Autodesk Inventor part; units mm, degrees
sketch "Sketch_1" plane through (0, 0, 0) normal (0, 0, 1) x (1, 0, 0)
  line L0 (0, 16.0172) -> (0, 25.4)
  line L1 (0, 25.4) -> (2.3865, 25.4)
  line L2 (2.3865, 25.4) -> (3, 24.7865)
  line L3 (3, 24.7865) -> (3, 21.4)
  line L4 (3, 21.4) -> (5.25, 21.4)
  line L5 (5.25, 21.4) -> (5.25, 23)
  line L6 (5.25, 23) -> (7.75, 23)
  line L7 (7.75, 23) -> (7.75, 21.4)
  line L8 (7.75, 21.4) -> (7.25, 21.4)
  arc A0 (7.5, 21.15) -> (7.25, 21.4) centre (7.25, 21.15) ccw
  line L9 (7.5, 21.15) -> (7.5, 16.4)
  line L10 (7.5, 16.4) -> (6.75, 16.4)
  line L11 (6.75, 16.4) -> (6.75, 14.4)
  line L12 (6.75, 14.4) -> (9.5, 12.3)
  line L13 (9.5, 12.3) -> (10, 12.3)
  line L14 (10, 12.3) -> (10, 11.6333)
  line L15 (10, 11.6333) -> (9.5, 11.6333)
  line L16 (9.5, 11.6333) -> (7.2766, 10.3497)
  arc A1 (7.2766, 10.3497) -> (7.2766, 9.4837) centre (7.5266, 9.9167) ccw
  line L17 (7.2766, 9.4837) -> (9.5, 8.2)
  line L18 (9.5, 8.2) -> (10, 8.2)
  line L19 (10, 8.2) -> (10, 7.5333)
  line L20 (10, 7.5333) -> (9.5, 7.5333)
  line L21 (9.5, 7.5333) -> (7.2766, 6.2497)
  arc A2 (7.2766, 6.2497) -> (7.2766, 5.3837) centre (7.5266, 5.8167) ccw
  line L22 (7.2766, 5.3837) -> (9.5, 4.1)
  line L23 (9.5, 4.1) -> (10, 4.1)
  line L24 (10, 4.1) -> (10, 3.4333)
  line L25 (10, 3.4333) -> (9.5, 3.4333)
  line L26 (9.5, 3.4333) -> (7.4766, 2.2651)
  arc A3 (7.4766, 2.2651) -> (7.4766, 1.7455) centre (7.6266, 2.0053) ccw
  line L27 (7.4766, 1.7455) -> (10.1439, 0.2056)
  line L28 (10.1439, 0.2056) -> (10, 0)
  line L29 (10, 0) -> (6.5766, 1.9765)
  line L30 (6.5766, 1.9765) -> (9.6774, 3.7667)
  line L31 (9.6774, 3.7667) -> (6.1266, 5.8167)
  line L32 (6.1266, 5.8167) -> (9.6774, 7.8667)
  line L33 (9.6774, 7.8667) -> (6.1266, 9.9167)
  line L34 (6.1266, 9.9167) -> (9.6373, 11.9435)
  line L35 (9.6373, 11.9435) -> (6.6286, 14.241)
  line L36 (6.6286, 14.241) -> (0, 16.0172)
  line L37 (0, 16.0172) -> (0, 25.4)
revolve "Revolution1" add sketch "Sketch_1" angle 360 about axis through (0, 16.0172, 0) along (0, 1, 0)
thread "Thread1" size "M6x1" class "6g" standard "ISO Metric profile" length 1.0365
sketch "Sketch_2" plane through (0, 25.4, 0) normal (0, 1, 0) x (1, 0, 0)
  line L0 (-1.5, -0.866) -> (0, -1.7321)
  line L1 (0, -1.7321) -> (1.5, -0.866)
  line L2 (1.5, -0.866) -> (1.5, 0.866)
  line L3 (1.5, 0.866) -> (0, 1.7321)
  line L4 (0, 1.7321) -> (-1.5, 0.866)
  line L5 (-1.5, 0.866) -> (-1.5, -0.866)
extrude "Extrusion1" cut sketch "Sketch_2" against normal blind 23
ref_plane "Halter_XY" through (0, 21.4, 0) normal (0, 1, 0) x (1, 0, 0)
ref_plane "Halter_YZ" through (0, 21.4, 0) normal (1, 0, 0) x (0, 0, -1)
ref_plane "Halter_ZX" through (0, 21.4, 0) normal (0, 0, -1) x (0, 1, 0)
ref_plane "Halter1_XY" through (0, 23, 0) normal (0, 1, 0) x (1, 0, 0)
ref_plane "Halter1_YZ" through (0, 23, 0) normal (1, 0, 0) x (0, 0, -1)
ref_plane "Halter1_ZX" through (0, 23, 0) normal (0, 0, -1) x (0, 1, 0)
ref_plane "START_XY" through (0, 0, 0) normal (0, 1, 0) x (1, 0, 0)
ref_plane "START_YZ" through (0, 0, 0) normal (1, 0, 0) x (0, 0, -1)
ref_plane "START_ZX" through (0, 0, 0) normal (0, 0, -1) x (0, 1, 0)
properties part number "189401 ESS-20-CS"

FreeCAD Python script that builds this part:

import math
import FreeCAD as App
import Part
import Sketcher
Q = App.Units.Quantity

doc = App.newDocument("Part")
body = doc.addObject("PartDesign::Body", "Body")

sketch1 = body.newObject("Sketcher::SketchObject", "Sketch")
sketch1.AttachmentSupport = (doc.getObject("XY_Plane"), [""])
sketch1.MapMode = "FlatFace"
sketch1.addGeometry([
    Part.LineSegment(App.Vector(0, 25.4, 0), App.Vector(0, 16.02, 0)),
    Part.LineSegment(App.Vector(0, 16.02, 0), App.Vector(6.63, 14.24, 0)),
    Part.LineSegment(App.Vector(6.63, 14.24, 0), App.Vector(9.64, 11.94, 0)),
    Part.LineSegment(App.Vector(9.64, 11.94, 0), App.Vector(6.13, 9.92, 0)),
    Part.LineSegment(App.Vector(6.13, 9.92, 0), App.Vector(9.68, 7.87, 0)),
    Part.LineSegment(App.Vector(9.68, 7.87, 0), App.Vector(6.13, 5.82, 0)),
    Part.LineSegment(App.Vector(6.13, 5.82, 0), App.Vector(9.68, 3.77, 0)),
    Part.LineSegment(App.Vector(9.68, 3.77, 0), App.Vector(6.58, 1.98, 0)),
    Part.LineSegment(App.Vector(6.58, 1.98, 0), App.Vector(10, 0, 0)),
    Part.LineSegment(App.Vector(10, 0, 0), App.Vector(10.14, 0.21, 0)),
    Part.LineSegment(App.Vector(10.14, 0.21, 0), App.Vector(7.48, 1.75, 0)),
    Part.ArcOfCircle(Part.Circle(App.Vector(7.63, 2.01, 0), App.Vector(0, 0, 1), 0.3), math.radians(120), math.radians(240)),
    Part.LineSegment(App.Vector(7.48, 2.27, 0), App.Vector(9.5, 3.43, 0)),
    Part.LineSegment(App.Vector(9.5, 3.43, 0), App.Vector(10, 3.43, 0)),
    Part.LineSegment(App.Vector(10, 3.43, 0), App.Vector(10, 4.1, 0)),
    Part.LineSegment(App.Vector(10, 4.1, 0), App.Vector(9.5, 4.1, 0)),
    Part.LineSegment(App.Vector(9.5, 4.1, 0), App.Vector(7.28, 5.38, 0)),
    Part.ArcOfCircle(Part.Circle(App.Vector(7.53, 5.82, 0), App.Vector(0, 0, 1), 0.5), math.radians(120), math.radians(240)),
    Part.LineSegment(App.Vector(7.28, 6.25, 0), App.Vector(9.5, 7.53, 0)),
    Part.LineSegment(App.Vector(9.5, 7.53, 0), App.Vector(10, 7.53, 0)),
    Part.LineSegment(App.Vector(10, 7.53, 0), App.Vector(10, 8.2, 0)),
    Part.LineSegment(App.Vector(10, 8.2, 0), App.Vector(9.5, 8.2, 0)),
    Part.LineSegment(App.Vector(9.5, 8.2, 0), App.Vector(7.28, 9.48, 0)),
    Part.ArcOfCircle(Part.Circle(App.Vector(7.53, 9.92, 0), App.Vector(0, 0, 1), 0.5), math.radians(120), math.radians(240)),
    Part.LineSegment(App.Vector(7.28, 10.35, 0), App.Vector(9.5, 11.63, 0)),
    Part.LineSegment(App.Vector(9.5, 11.63, 0), App.Vector(10, 11.63, 0)),
    Part.LineSegment(App.Vector(10, 11.63, 0), App.Vector(10, 12.3, 0)),
    Part.LineSegment(App.Vector(10, 12.3, 0), App.Vector(9.5, 12.3, 0)),
    Part.LineSegment(App.Vector(9.5, 12.3, 0), App.Vector(6.75, 14.4, 0)),
    Part.LineSegment(App.Vector(6.75, 14.4, 0), App.Vector(6.75, 16.4, 0)),
    Part.LineSegment(App.Vector(6.75, 16.4, 0), App.Vector(7.5, 16.4, 0)),
    Part.LineSegment(App.Vector(7.5, 16.4, 0), App.Vector(7.5, 21.15, 0)),
    Part.ArcOfCircle(Part.Circle(App.Vector(7.25, 21.15, 0), App.Vector(0, 0, 1), 0.25), math.radians(0), math.radians(90)),
    Part.LineSegment(App.Vector(7.25, 21.4, 0), App.Vector(7.75, 21.4, 0)),
    Part.LineSegment(App.Vector(7.75, 21.4, 0), App.Vector(7.75, 23, 0)),
    Part.LineSegment(App.Vector(7.75, 23, 0), App.Vector(5.25, 23, 0)),
    Part.LineSegment(App.Vector(5.25, 23, 0), App.Vector(5.25, 21.4, 0)),
    Part.LineSegment(App.Vector(5.25, 21.4, 0), App.Vector(3, 21.4, 0)),
    Part.LineSegment(App.Vector(3, 21.4, 0), App.Vector(3, 24.79, 0)),
    Part.LineSegment(App.Vector(3, 24.79, 0), App.Vector(2.39, 25.4, 0)),
    Part.LineSegment(App.Vector(2.39, 25.4, 0), App.Vector(0, 25.4, 0)),
], False)
sketch1.addConstraint([
    Sketcher.Constraint("Coincident", 0, 2, 1, 1),
    Sketcher.Constraint("Coincident", 1, 2, 2, 1),
    Sketcher.Constraint("Coincident", 2, 2, 3, 1),
    Sketcher.Constraint("Coincident", 3, 2, 4, 1),
    Sketcher.Constraint("Coincident", 4, 2, 5, 1),
    Sketcher.Constraint("Coincident", 5, 2, 6, 1),
    Sketcher.Constraint("Coincident", 6, 2, 7, 1),
    Sketcher.Constraint("Coincident", 7, 2, 8, 1),
    Sketcher.Constraint("Coincident", 8, 2, 9, 1),
    Sketcher.Constraint("Coincident", 9, 2, 10, 1),
    Sketcher.Constraint("Tangent", 10, 2, 11, 2),
    Sketcher.Constraint("Tangent", 11, 1, 12, 1),
    Sketcher.Constraint("Coincident", 12, 2, 13, 1),
    Sketcher.Constraint("Coincident", 13, 2, 14, 1),
    Sketcher.Constraint("Coincident", 14, 2, 15, 1),
    Sketcher.Constraint("Coincident", 15, 2, 16, 1),
    Sketcher.Constraint("Tangent", 16, 2, 17, 2),
    Sketcher.Constraint("Tangent", 17, 1, 18, 1),
    Sketcher.Constraint("Coincident", 18, 2, 19, 1),
    Sketcher.Constraint("Coincident", 19, 2, 20, 1),
    Sketcher.Constraint("Coincident", 20, 2, 21, 1),
    Sketcher.Constraint("Coincident", 21, 2, 22, 1),
    Sketcher.Constraint("Tangent", 22, 2, 23, 2),
    Sketcher.Constraint("Tangent", 23, 1, 24, 1),
    Sketcher.Constraint("Coincident", 24, 2, 25, 1),
    Sketcher.Constraint("Coincident", 25, 2, 26, 1),
    Sketcher.Constraint("Coincident", 26, 2, 27, 1),
    Sketcher.Constraint("Coincident", 27, 2, 28, 1),
    Sketcher.Constraint("Coincident", 28, 2, 29, 1),
    Sketcher.Constraint("Coincident", 29, 2, 30, 1),
    Sketcher.Constraint("Coincident", 30, 2, 31, 1),
    Sketcher.Constraint("Tangent", 31, 2, 32, 1),
    Sketcher.Constraint("Tangent", 32, 2, 33, 1),
    Sketcher.Constraint("Coincident", 33, 2, 34, 1),
    Sketcher.Constraint("Coincident", 34, 2, 35, 1),
    Sketcher.Constraint("Coincident", 35, 2, 36, 1),
    Sketcher.Constraint("Coincident", 36, 2, 37, 1),
    Sketcher.Constraint("Coincident", 37, 2, 38, 1),
    Sketcher.Constraint("Coincident", 38, 2, 39, 1),
    Sketcher.Constraint("Coincident", 39, 2, 40, 1),
    Sketcher.Constraint("Coincident", 40, 2, 0, 1),
    Sketcher.Constraint("Vertical", 0),
    Sketcher.Constraint("Horizontal", 13),
    Sketcher.Constraint("Vertical", 14),
    Sketcher.Constraint("Horizontal", 15),
    Sketcher.Constraint("Horizontal", 19),
    Sketcher.Constraint("Vertical", 20),
    Sketcher.Constraint("Horizontal", 21),
    Sketcher.Constraint("Horizontal", 25),
    Sketcher.Constraint("Vertical", 26),
    Sketcher.Constraint("Horizontal", 27),
    Sketcher.Constraint("Vertical", 29),
    Sketcher.Constraint("Horizontal", 30),
    Sketcher.Constraint("Vertical", 31),
    Sketcher.Constraint("Horizontal", 33),
    Sketcher.Constraint("Vertical", 34),
    Sketcher.Constraint("Horizontal", 35),
    Sketcher.Constraint("Vertical", 36),
    Sketcher.Constraint("Horizontal", 37),
    Sketcher.Constraint("Vertical", 38),
    Sketcher.Constraint("Horizontal", 40),
    Sketcher.Constraint("Equal", 17, 23),
    Sketcher.Constraint("PointOnObject", 0, 2, -2),
    Sketcher.Constraint("PointOnObject", 8, 2, -1),
    Sketcher.Constraint("Parallel", 3, 5),
    Sketcher.Constraint("Parallel", 4, 6),
    Sketcher.Constraint("Parallel", 5, 7),
    Sketcher.Constraint("Parallel", 6, 8),
    Sketcher.Constraint("Parallel", 8, 10),
    Sketcher.Constraint("Parallel", 7, 12),
    Sketcher.Constraint("Parallel", 10, 16),
    Sketcher.Constraint("Parallel", 12, 18),
    Sketcher.Constraint("Parallel", 16, 22),
    Sketcher.Constraint("Parallel", 18, 24),
    Sketcher.Constraint("Parallel", 2, 28),
    Sketcher.Constraint("Horizontal", 23, 3, 3, 2),
    Sketcher.Constraint("Horizontal", 17, 3, 5, 2),
    Sketcher.Constraint("Horizontal", 33, 2, 36, 2),
    Sketcher.Constraint("Vertical", 17, 3, 23, 3),
    Sketcher.Constraint("Vertical", 3, 2, 5, 2),
    Sketcher.Constraint("Vertical", 4, 2, 6, 2),
    Sketcher.Constraint("Vertical", 10, 2, 11, 1),
    Sketcher.Constraint("Vertical", 8, 2, 13, 2),
    Sketcher.Constraint("Vertical", 12, 2, 15, 2),
    Sketcher.Constraint("Vertical", 15, 2, 18, 2),
    Sketcher.Constraint("Vertical", 14, 2, 19, 2),
    Sketcher.Constraint("Vertical", 18, 2, 21, 2),
    Sketcher.Constraint("Vertical", 21, 2, 24, 2),
    Sketcher.Constraint("Vertical", 20, 2, 25, 2),
    Sketcher.Constraint("Vertical", 24, 2, 27, 2),
    Sketcher.Constraint("Equal", 27, 33),
    Sketcher.Constraint("Equal", 14, 20),
    Sketcher.Constraint("Equal", 20, 26),
    Sketcher.Constraint("Radius", 11, 0.3),
    Sketcher.Constraint("Radius", 17, 0.5),
    Sketcher.Constraint("DistanceY", 29, 1, 29, 2, 2.0),
    Sketcher.Constraint("Angle", 1, Q("-15.0006 deg")),
    Sketcher.Constraint("Angle", 4, Q("-29.9993 deg")),
    Sketcher.Constraint("Angle", 39, Q("135 deg")),
    Sketcher.Constraint("Radius", 32, 0.25),
    Sketcher.Constraint("DistanceX", 13, 1, 13, 2, 0.5),
    Sketcher.Constraint("DistanceX", 35, 2, 35, 1, 2.5),
    Sketcher.Constraint("DistanceY", 34, 1, 34, 2, 1.6),
    Sketcher.Constraint("DistanceX", -1, 1, 8, 2, 10.0),
    Sketcher.Constraint("DistanceY", -1, 1, 34, 2, 23.0),
    Sketcher.Constraint("DistanceX", -1, 1, 37, 2, 3.0),
    Sketcher.Constraint("DistanceX", 30, 2, 27, 2, 2.0),
    Sketcher.Constraint("DistanceY", 30, 2, 32, 2, 5.0),
    Sketcher.Constraint("DistanceX", 29, 2, 33, 2, 1.0),
    Sketcher.Constraint("DistanceY", 37, 2, 39, 2, 4.0),
    Sketcher.Constraint("Distance", 4, 4.1),
    Sketcher.Constraint("DistanceY", -1, 1, 14, 2, 4.1),
    Sketcher.Constraint("DistanceX", 17, 3, 11, 3, 0.1),
    Sketcher.Constraint("DistanceX", 3, 2, 23, 3, 1.4),
    Sketcher.Constraint("Distance", 10, 3.08),
    Sketcher.Constraint("DistanceX", 2, 2, 4, 2, 0.04),
    Sketcher.Constraint("Distance", 8, 3.953),
    Sketcher.Constraint("DistanceX", 40, 2, 40, 1, 2.3865),
    Sketcher.Constraint("DistanceY", 0, 2, 0, 1, 9.3828),
])
revolution = body.newObject("PartDesign::Revolution", "Revolution")
revolution.Profile = sketch1
revolution.ReferenceAxis = (sketch1, ["V_Axis"])
revolution.Angle = 360

sketch2 = body.newObject("Sketcher::SketchObject", "Sketch001")
sketch2.AttachmentSupport = (doc.getObject("XZ_Plane"), [""])
sketch2.MapMode = "FlatFace"
sketch2.AttachmentOffset = App.Placement(App.Vector(0, 0, -25.4), App.Rotation())
sketch2.addGeometry([
    Part.LineSegment(App.Vector(-1.5, -0.9, 0), App.Vector(-1.5, 0.9, 0)),
    Part.LineSegment(App.Vector(-1.5, 0.9, 0), App.Vector(0, 1.7, 0)),
    Part.LineSegment(App.Vector(0, 1.7, 0), App.Vector(1.5, 0.9, 0)),
    Part.LineSegment(App.Vector(1.5, 0.9, 0), App.Vector(1.5, -0.9, 0)),
    Part.LineSegment(App.Vector(1.5, -0.9, 0), App.Vector(0, -1.7, 0)),
    Part.LineSegment(App.Vector(0, -1.7, 0), App.Vector(-1.5, -0.9, 0)),
], False)
sketch2.addConstraint([
    Sketcher.Constraint("Coincident", 0, 2, 1, 1),
    Sketcher.Constraint("Coincident", 1, 2, 2, 1),
    Sketcher.Constraint("Coincident", 2, 2, 3, 1),
    Sketcher.Constraint("Coincident", 3, 2, 4, 1),
    Sketcher.Constraint("Coincident", 4, 2, 5, 1),
    Sketcher.Constraint("Coincident", 5, 2, 0, 1),
    Sketcher.Constraint("Vertical", 0),
    Sketcher.Constraint("Vertical", 3),
    Sketcher.Constraint("Symmetric", 0, 2, 3, 2, -1, 1),
    Sketcher.Constraint("Symmetric", 1, 2, 4, 2, -1, 1),
    Sketcher.Constraint("PointOnObject", 1, 2, -2),
    Sketcher.Constraint("Parallel", 2, 5),
    Sketcher.Constraint("Horizontal", 0, 2, 2, 2),
    Sketcher.Constraint("DistanceX", 0, 2, 2, 2, 3.0),
    Sketcher.Constraint("DistanceY", 0, 1, 0, 2, 1.732),
    Sketcher.Constraint("Distance", 1, 1.732),
])
pocket1 = body.newObject("PartDesign::Pocket", "Pocket")
pocket1.Profile = sketch2
pocket1.Length = 23
pocket1.Reversed = True

doc.recompute()
